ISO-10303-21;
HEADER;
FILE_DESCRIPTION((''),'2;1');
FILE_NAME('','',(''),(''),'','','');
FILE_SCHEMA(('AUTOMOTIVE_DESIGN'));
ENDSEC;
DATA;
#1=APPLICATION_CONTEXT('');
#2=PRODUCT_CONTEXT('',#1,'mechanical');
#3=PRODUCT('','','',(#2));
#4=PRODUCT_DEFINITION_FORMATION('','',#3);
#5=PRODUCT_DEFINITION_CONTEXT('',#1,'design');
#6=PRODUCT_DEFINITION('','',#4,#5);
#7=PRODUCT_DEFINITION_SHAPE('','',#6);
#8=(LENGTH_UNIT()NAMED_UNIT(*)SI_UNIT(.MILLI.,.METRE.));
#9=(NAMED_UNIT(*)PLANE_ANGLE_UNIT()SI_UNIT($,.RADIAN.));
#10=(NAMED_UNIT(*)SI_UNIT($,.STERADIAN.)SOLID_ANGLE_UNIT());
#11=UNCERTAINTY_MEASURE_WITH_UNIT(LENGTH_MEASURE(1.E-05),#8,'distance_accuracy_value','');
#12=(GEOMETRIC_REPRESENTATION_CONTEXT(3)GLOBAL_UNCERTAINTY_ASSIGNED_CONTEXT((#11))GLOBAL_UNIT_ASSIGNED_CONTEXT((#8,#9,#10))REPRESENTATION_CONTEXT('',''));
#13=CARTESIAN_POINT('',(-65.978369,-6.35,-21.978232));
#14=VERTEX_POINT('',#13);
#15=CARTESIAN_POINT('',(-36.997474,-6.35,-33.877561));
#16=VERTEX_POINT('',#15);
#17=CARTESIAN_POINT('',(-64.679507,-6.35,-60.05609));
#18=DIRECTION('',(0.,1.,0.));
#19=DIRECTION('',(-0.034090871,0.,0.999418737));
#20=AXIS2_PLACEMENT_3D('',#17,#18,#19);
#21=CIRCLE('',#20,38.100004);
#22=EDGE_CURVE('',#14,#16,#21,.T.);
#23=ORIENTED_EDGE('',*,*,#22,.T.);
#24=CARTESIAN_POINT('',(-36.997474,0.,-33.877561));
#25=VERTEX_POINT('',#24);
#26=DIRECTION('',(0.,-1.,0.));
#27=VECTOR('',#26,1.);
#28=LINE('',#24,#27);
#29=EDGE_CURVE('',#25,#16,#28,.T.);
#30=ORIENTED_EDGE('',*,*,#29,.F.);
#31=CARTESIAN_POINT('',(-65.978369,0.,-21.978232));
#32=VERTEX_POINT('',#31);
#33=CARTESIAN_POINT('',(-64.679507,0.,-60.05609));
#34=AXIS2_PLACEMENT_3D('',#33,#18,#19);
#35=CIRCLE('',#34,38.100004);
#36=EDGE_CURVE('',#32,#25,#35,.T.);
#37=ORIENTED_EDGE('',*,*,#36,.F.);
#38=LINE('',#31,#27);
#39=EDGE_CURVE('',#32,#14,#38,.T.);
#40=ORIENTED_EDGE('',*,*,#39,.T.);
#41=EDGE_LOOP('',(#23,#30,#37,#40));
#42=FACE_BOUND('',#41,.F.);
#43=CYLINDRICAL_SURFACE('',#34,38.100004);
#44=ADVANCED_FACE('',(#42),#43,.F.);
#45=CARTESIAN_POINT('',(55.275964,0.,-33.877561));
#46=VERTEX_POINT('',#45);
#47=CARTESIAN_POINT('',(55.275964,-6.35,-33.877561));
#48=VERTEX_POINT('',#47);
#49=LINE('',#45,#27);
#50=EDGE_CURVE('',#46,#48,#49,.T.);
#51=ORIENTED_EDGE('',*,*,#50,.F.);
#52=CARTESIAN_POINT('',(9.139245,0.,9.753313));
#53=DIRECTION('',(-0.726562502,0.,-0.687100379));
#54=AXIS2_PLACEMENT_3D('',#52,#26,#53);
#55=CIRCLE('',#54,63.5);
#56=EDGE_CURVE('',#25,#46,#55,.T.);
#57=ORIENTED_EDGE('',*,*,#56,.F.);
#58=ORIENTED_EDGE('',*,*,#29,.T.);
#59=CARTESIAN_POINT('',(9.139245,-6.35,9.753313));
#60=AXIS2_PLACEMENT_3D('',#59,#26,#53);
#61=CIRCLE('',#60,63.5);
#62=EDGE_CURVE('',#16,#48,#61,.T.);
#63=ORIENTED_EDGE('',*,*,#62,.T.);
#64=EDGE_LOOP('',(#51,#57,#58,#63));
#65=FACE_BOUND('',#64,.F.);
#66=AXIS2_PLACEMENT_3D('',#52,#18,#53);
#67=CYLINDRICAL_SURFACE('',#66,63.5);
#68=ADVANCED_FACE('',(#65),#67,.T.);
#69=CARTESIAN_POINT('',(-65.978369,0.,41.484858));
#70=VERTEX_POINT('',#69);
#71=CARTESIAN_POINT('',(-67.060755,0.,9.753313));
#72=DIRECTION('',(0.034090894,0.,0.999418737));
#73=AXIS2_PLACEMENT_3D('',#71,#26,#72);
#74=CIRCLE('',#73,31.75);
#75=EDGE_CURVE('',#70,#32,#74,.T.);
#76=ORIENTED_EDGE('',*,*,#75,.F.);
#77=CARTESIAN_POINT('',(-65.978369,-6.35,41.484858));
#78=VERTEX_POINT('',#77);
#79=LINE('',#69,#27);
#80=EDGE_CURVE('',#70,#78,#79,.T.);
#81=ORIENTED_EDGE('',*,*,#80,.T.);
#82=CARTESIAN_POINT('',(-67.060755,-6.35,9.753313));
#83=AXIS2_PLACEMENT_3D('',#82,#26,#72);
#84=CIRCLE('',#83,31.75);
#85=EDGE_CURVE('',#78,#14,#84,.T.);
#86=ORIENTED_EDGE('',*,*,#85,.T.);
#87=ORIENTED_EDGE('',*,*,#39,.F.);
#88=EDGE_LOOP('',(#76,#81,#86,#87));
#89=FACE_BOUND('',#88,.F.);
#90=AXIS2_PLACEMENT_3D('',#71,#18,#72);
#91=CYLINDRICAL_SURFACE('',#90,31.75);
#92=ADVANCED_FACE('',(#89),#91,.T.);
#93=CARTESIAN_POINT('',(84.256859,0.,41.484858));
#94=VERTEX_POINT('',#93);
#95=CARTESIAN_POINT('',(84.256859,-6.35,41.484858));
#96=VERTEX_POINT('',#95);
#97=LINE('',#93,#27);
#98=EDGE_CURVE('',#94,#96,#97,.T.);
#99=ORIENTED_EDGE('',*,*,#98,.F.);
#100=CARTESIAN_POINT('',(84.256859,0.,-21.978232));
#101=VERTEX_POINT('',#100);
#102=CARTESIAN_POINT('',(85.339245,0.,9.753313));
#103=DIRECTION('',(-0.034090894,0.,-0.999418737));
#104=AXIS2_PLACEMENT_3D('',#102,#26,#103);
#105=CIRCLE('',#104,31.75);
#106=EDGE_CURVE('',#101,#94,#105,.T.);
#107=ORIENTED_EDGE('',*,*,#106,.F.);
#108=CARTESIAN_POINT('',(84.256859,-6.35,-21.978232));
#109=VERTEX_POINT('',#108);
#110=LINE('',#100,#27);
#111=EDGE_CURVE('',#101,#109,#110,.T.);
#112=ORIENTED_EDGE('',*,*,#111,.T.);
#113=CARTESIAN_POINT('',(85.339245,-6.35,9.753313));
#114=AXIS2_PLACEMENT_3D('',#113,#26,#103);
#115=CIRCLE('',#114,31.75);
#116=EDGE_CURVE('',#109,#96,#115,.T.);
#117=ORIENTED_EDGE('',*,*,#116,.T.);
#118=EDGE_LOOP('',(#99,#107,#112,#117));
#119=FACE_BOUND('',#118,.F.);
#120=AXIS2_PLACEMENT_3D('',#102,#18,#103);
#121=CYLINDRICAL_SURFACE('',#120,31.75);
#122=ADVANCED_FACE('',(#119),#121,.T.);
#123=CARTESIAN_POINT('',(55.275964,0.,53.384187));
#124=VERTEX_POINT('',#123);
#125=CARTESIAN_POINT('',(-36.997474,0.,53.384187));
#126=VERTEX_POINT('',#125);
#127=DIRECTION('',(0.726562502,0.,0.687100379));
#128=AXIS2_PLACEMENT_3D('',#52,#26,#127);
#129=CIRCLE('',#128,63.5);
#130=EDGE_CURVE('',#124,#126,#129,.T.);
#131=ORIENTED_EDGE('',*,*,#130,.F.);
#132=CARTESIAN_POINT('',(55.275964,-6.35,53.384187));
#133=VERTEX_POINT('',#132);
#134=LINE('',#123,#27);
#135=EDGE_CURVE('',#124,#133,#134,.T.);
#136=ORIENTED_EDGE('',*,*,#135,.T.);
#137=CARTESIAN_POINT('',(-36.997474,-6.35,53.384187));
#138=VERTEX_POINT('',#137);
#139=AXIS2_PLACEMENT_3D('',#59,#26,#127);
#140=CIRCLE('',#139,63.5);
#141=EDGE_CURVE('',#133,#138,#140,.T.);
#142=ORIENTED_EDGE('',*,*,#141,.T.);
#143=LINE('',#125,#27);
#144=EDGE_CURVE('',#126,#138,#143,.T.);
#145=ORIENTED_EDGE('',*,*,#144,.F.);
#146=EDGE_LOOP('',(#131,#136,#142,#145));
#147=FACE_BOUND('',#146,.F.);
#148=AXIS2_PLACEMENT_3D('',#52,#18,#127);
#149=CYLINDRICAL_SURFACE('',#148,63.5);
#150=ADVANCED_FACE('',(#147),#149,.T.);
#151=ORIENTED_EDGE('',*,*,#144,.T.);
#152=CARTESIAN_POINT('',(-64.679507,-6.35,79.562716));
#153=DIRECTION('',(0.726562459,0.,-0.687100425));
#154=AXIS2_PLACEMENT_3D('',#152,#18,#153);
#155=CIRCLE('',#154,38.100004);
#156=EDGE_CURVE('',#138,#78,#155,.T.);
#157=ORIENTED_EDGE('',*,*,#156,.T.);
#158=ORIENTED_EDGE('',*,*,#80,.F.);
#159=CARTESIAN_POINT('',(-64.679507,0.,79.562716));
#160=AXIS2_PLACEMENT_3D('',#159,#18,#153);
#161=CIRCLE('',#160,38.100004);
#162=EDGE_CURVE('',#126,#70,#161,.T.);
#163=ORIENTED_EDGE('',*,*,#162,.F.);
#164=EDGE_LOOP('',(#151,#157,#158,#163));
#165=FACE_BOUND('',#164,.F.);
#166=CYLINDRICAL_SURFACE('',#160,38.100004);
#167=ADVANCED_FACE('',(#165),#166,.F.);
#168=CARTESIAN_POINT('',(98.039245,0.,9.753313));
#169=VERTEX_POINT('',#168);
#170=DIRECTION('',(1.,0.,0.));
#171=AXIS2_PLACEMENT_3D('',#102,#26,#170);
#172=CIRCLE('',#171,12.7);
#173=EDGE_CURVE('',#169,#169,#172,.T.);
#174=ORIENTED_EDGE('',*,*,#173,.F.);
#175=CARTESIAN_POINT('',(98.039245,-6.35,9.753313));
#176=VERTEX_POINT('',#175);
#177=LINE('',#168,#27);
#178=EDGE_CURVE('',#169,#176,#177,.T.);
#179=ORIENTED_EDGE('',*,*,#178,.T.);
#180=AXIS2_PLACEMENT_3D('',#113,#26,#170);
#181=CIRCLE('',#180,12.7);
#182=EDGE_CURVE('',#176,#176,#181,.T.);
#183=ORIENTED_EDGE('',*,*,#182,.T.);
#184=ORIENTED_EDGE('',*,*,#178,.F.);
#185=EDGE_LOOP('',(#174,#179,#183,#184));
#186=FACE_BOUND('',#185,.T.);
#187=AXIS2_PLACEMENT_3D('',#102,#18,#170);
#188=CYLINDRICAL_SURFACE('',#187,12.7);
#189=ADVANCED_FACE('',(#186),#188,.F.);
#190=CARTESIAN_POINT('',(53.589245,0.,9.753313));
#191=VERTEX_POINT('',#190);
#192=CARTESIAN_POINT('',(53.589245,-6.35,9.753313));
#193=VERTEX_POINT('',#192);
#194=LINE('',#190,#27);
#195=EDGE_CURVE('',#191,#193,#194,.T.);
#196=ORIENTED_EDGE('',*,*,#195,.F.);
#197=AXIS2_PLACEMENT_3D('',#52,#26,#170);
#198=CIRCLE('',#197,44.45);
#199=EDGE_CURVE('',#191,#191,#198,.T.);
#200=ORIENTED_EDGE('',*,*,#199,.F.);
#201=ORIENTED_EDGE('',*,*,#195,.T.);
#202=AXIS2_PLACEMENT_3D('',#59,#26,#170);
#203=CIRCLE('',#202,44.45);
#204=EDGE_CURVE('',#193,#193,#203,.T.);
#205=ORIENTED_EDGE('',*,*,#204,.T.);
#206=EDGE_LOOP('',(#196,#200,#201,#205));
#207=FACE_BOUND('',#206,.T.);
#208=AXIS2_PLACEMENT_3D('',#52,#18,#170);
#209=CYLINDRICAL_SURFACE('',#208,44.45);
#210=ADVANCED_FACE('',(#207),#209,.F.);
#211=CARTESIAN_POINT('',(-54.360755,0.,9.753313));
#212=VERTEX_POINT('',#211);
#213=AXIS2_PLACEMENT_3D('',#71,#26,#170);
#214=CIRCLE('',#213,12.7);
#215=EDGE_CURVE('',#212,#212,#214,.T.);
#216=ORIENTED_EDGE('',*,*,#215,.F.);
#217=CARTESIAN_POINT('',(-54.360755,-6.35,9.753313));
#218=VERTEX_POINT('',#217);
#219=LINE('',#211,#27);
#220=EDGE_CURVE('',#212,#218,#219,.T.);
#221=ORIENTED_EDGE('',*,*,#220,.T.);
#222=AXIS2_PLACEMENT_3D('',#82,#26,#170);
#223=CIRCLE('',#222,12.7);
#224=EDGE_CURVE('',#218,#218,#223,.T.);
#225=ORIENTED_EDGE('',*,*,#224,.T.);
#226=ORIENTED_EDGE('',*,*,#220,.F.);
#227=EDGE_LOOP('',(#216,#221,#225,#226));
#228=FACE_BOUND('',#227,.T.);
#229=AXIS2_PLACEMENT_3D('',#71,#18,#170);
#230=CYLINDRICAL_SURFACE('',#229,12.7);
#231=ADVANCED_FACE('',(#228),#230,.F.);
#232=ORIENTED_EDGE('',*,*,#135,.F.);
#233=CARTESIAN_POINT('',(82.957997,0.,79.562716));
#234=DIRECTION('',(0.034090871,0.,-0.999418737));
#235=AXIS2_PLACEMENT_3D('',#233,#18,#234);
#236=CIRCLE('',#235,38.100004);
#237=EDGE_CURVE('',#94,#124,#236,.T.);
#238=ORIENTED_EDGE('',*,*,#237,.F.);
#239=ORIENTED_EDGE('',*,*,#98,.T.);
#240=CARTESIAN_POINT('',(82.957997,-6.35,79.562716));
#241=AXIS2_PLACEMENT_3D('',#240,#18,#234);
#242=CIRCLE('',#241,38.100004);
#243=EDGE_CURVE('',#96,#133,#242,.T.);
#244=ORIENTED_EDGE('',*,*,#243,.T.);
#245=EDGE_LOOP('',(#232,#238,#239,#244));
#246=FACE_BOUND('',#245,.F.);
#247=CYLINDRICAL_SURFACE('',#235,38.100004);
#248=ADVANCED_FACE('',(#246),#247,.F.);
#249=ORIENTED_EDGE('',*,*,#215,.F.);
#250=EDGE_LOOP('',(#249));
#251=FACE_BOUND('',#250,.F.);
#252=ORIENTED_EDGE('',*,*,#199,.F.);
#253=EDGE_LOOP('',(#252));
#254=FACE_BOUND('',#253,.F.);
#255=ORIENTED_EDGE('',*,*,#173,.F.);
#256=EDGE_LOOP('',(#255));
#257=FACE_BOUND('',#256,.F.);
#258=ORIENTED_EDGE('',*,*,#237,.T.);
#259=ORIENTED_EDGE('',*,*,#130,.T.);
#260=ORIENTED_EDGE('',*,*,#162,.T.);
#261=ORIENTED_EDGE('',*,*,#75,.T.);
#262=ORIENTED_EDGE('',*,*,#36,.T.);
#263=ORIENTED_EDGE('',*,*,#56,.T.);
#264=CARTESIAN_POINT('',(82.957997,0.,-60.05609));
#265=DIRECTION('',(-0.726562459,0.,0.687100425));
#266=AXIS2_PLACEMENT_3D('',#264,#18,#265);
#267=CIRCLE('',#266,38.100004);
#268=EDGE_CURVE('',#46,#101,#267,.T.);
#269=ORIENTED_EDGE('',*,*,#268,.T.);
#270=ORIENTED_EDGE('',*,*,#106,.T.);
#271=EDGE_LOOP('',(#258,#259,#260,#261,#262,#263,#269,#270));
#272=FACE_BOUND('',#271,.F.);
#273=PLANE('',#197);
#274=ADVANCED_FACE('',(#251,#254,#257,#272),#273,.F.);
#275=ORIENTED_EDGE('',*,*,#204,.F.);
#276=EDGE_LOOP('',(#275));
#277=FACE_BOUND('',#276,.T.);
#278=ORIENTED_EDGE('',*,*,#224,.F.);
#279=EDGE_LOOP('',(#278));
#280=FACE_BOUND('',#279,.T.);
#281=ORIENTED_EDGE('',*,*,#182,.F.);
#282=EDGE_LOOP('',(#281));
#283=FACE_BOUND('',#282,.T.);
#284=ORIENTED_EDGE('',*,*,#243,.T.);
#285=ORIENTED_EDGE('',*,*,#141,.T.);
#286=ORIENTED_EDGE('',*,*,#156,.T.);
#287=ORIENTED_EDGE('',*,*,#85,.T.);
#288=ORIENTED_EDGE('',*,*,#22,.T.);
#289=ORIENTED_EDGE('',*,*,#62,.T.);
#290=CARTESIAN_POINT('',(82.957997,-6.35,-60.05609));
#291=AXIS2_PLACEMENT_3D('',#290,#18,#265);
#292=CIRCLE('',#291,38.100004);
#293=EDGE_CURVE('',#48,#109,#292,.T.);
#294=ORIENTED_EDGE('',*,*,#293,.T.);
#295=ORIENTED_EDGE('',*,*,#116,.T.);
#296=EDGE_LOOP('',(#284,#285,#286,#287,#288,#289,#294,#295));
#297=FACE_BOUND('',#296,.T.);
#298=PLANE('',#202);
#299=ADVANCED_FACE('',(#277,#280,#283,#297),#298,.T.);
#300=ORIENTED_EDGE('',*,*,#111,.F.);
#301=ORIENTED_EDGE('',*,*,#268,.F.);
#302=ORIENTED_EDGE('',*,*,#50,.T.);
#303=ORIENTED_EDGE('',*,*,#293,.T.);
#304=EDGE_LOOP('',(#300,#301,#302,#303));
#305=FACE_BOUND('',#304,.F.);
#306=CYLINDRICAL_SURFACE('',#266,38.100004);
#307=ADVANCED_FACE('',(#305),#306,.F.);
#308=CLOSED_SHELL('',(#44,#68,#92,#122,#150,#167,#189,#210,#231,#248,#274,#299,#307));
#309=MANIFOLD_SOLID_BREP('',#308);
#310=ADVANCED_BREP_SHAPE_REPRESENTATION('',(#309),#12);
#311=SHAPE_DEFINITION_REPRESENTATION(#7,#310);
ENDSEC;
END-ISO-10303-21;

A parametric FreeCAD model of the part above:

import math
import FreeCAD as App
import Part
import Sketcher
Q = App.Units.Quantity

doc = App.newDocument("Part")
body = doc.addObject("PartDesign::Body", "Body")

sketch1 = body.newObject("Sketcher::SketchObject", "Sketch")
sketch1.AttachmentSupport = (doc.getObject("XZ_Plane"), [""])
sketch1.MapMode = "FlatFace"
sketch1.addGeometry([
    Part.ArcOfCircle(Part.Circle(App.Vector(83, -60, 0), App.Vector(0, 0, 1), 38), math.radians(88), math.radians(137)),
    Part.ArcOfCircle(Part.Circle(App.Vector(85, 10, 0), App.Vector(0, 0, 1), 32), math.radians(-92), math.radians(92)),
    Part.ArcOfCircle(Part.Circle(App.Vector(83, 80, 0), App.Vector(0, 0, 1), 38), math.radians(-137), math.radians(-88)),
    Part.ArcOfCircle(Part.Circle(App.Vector(9, 10, 0), App.Vector(0, 0, 1), 64), math.radians(43), math.radians(137)),
    Part.ArcOfCircle(Part.Circle(App.Vector(-65, 80, 0), App.Vector(0, 0, 1), 38), math.radians(-92), math.radians(-43)),
    Part.ArcOfCircle(Part.Circle(App.Vector(-67, 10, 0), App.Vector(0, 0, 1), 32), math.radians(88), math.radians(272)),
    Part.ArcOfCircle(Part.Circle(App.Vector(-65, -60, 0), App.Vector(0, 0, 1), 38), math.radians(43), math.radians(92)),
    Part.ArcOfCircle(Part.Circle(App.Vector(9, 10, 0), App.Vector(0, 0, 1), 64), math.radians(-137), math.radians(-43)),
    Part.Circle(App.Vector(-67, 10, 0), App.Vector(0, 0, 1), 13),
    Part.Circle(App.Vector(9, 10, 0), App.Vector(0, 0, 1), 44),
    Part.Circle(App.Vector(85, 10, 0), App.Vector(0, 0, 1), 13),
], False)
sketch1.addConstraint([
    Sketcher.Constraint("Tangent", 0, 1, 1, 1),
    Sketcher.Constraint("Tangent", 1, 2, 2, 2),
    Sketcher.Constraint("Tangent", 2, 1, 3, 1),
    Sketcher.Constraint("Tangent", 3, 2, 4, 2),
    Sketcher.Constraint("Tangent", 4, 1, 5, 1),
    Sketcher.Constraint("Tangent", 5, 2, 6, 2),
    Sketcher.Constraint("Tangent", 6, 1, 7, 1),
    Sketcher.Constraint("Tangent", 7, 2, 0, 2),
    Sketcher.Constraint("Coincident", 7, 3, 3, 3),
    Sketcher.Constraint("Coincident", 8, 3, 5, 3),
    Sketcher.Constraint("Coincident", 9, 3, 3, 3),
    Sketcher.Constraint("Coincident", 10, 3, 1, 3),
    Sketcher.Constraint("Equal", 0, 2),
    Sketcher.Constraint("Equal", 2, 4),
    Sketcher.Constraint("Equal", 1, 5),
    Sketcher.Constraint("Equal", 4, 6),
    Sketcher.Constraint("Equal", 3, 7),
    Sketcher.Constraint("Equal", 8, 10),
    Sketcher.Constraint("Horizontal", 1, 3, 3, 3),
    Sketcher.Constraint("Horizontal", 2, 3, 4, 3),
    Sketcher.Constraint("Horizontal", 3, 3, 5, 3),
    Sketcher.Constraint("Diameter", 8, Q("1 in")),
    Sketcher.Constraint("Diameter", 9, Q("3.5 in")),
    Sketcher.Constraint("Radius", 0, Q("1.5000002 in")),
    Sketcher.Constraint("Radius", 3, Q("2.5 in")),
    Sketcher.Constraint("Radius", 1, Q("1.25 in")),
    Sketcher.Constraint("DistanceX", 3, 3, 1, 3, Q("3 in")),
    Sketcher.Constraint("DistanceY", 0, 3, -1, 1, Q("60.05609 mm")),
    Sketcher.Constraint("DistanceX", -1, 1, 0, 1, Q("84.256859 mm")),
])
pad1 = body.newObject("PartDesign::Pad", "Pad")
pad1.Profile = sketch1
pad1.Length = Q("0.25 in")

doc.recompute()
